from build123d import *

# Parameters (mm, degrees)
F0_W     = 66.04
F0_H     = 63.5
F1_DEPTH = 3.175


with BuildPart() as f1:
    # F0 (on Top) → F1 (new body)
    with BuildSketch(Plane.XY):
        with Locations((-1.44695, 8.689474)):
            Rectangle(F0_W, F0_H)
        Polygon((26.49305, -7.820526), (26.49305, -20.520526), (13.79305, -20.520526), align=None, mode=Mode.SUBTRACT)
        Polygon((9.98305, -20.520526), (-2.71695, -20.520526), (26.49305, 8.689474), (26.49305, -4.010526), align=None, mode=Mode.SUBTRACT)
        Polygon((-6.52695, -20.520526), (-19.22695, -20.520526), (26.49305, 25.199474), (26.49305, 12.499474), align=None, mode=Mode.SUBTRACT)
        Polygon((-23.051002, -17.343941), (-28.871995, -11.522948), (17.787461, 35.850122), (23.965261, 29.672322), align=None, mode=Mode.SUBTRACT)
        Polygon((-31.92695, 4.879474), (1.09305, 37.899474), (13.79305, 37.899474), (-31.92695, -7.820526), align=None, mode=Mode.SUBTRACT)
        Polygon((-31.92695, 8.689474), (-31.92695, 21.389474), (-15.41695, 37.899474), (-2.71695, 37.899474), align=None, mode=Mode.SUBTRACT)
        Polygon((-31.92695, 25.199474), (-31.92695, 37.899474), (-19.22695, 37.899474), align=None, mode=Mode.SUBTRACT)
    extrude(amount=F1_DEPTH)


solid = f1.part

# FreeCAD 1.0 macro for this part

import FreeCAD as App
import Part
import Sketcher

V = App.Vector
Q = App.Units.Quantity

doc = App.newDocument("Part")
body = doc.addObject("PartDesign::Body", "Body")

sketch1 = body.newObject("Sketcher::SketchObject", "Sketch")
sketch1.AttachmentSupport = (doc.getObject("XY_Plane"), [""])
sketch1.MapMode = "FlatFace"
sketch1.addGeometry([
    Part.LineSegment(V(-34.46695, 40.439474, 0), V(-34.46695, -23.060526, 0)),
    Part.LineSegment(V(-34.46695, -23.060526, 0), V(31.57305, -23.060526, 0)),
    Part.LineSegment(V(31.57305, -23.060526, 0), V(31.57305, 40.439474, 0)),
    Part.LineSegment(V(31.57305, 40.439474, 0), V(-34.46695, 40.439474, 0)),
    Part.LineSegment(V(13.79305, -20.520526, 0), V(26.49305, -7.820526, 0)),
    Part.LineSegment(V(26.49305, -7.820526, 0), V(26.49305, -20.520526, 0)),
    Part.LineSegment(V(26.49305, -20.520526, 0), V(13.79305, -20.520526, 0)),
    Part.LineSegment(V(26.49305, 12.499474, 0), V(-6.52695, -20.520526, 0)),
    Part.LineSegment(V(-6.52695, -20.520526, 0), V(-19.22695, -20.520526, 0)),
    Part.LineSegment(V(-19.22695, -20.520526, 0), V(26.49305, 25.199474, 0)),
    Part.LineSegment(V(26.49305, 25.199474, 0), V(26.49305, 12.499474, 0)),
    Part.LineSegment(V(26.49305, -4.010526, 0), V(9.98305, -20.520526, 0)),
    Part.LineSegment(V(9.98305, -20.520526, 0), V(-2.71695, -20.520526, 0)),
    Part.LineSegment(V(-2.71695, -20.520526, 0), V(26.49305, 8.689474, 0)),
    Part.LineSegment(V(26.49305, 8.689474, 0), V(26.49305, -4.010526, 0)),
    Part.LineSegment(V(-31.92695, -7.820526, 0), V(-31.92695, 4.879474, 0)),
    Part.LineSegment(V(-31.92695, 4.879474, 0), V(1.09305, 37.899474, 0)),
    Part.LineSegment(V(1.09305, 37.899474, 0), V(13.79305, 37.899474, 0)),
    Part.LineSegment(V(13.79305, 37.899474, 0), V(-31.92695, -7.820526, 0)),
    Part.LineSegment(V(-19.22695, 37.899474, 0), V(-31.92695, 25.199474, 0)),
    Part.LineSegment(V(-31.92695, 25.199474, 0), V(-31.92695, 37.899474, 0)),
    Part.LineSegment(V(-31.92695, 37.899474, 0), V(-19.22695, 37.899474, 0)),
    Part.LineSegment(V(-2.71695, 37.899474, 0), V(-31.92695, 8.689474, 0)),
    Part.LineSegment(V(-31.92695, 8.689474, 0), V(-31.92695, 21.389474, 0)),
    Part.LineSegment(V(-31.92695, 21.389474, 0), V(-15.41695, 37.899474, 0)),
    Part.LineSegment(V(-15.41695, 37.899474, 0), V(-2.71695, 37.899474, 0)),
    Part.LineSegment(V(23.965261, 29.672322, 0), V(-23.051002, -17.343941, 0)),
    Part.LineSegment(V(-23.051002, -17.343941, 0), V(-28.871995, -11.522948, 0)),
    Part.LineSegment(V(-28.871995, -11.522948, 0), V(17.787461, 35.850122, 0)),
    Part.LineSegment(V(17.787461, 35.850122, 0), V(23.965261, 29.672322, 0)),
], False)
sketch1.addConstraint([
    Sketcher.Constraint("Coincident", 0, 2, 1, 1),
    Sketcher.Constraint("Coincident", 1, 2, 2, 1),
    Sketcher.Constraint("Coincident", 2, 2, 3, 1),
    Sketcher.Constraint("Coincident", 3, 2, 0, 1),
    Sketcher.Constraint("Coincident", 4, 2, 5, 1),
    Sketcher.Constraint("Coincident", 5, 2, 6, 1),
    Sketcher.Constraint("Coincident", 6, 2, 4, 1),
    Sketcher.Constraint("Coincident", 7, 2, 8, 1),
    Sketcher.Constraint("Coincident", 8, 2, 9, 1),
    Sketcher.Constraint("Coincident", 9, 2, 10, 1),
    Sketcher.Constraint("Coincident", 10, 2, 7, 1),
    Sketcher.Constraint("Coincident", 11, 2, 12, 1),
    Sketcher.Constraint("Coincident", 12, 2, 13, 1),
    Sketcher.Constraint("Coincident", 13, 2, 14, 1),
    Sketcher.Constraint("Coincident", 14, 2, 11, 1),
    Sketcher.Constraint("Coincident", 15, 2, 16, 1),
    Sketcher.Constraint("Coincident", 16, 2, 17, 1),
    Sketcher.Constraint("Coincident", 17, 2, 18, 1),
    Sketcher.Constraint("Coincident", 18, 2, 15, 1),
    Sketcher.Constraint("Coincident", 19, 2, 20, 1),
    Sketcher.Constraint("Coincident", 20, 2, 21, 1),
    Sketcher.Constraint("Coincident", 21, 2, 19, 1),
    Sketcher.Constraint("Coincident", 22, 2, 23, 1),
    Sketcher.Constraint("Coincident", 23, 2, 24, 1),
    Sketcher.Constraint("Coincident", 24, 2, 25, 1),
    Sketcher.Constraint("Coincident", 25, 2, 22, 1),
    Sketcher.Constraint("Coincident", 26, 2, 27, 1),
    Sketcher.Constraint("Coincident", 27, 2, 28, 1),
    Sketcher.Constraint("Coincident", 28, 2, 29, 1),
    Sketcher.Constraint("Coincident", 29, 2, 26, 1),
    Sketcher.Constraint("Vertical", 0),
    Sketcher.Constraint("Horizontal", 1),
    Sketcher.Constraint("Vertical", 2),
    Sketcher.Constraint("Horizontal", 3),
    Sketcher.Constraint("Vertical", 5),
    Sketcher.Constraint("Horizontal", 6),
    Sketcher.Constraint("Horizontal", 8),
    Sketcher.Constraint("Vertical", 10),
    Sketcher.Constraint("Horizontal", 12),
    Sketcher.Constraint("Vertical", 14),
    Sketcher.Constraint("Vertical", 15),
    Sketcher.Constraint("Horizontal", 17),
    Sketcher.Constraint("Vertical", 20),
    Sketcher.Constraint("Horizontal", 21),
    Sketcher.Constraint("Vertical", 23),
    Sketcher.Constraint("Horizontal", 25),
    Sketcher.Constraint("DistanceX", 1, 1, 1, 2, Q("2.6 in")),
    Sketcher.Constraint("DistanceX", 6, 2, 6, 1, Q("0.5 in")),
    Sketcher.Constraint("DistanceX", 8, 2, 8, 1, Q("0.5 in")),
    Sketcher.Constraint("DistanceX", 12, 2, 12, 1, Q("0.5 in")),
    Sketcher.Constraint("DistanceX", 17, 1, 17, 2, Q("0.5 in")),
    Sketcher.Constraint("DistanceX", 21, 1, 21, 2, Q("0.5 in")),
    Sketcher.Constraint("DistanceX", 25, 1, 25, 2, Q("0.5 in")),
    Sketcher.Constraint("DistanceY", 0, 2, 0, 1, Q("2.5 in")),
    Sketcher.Constraint("DistanceY", 5, 2, 5, 1, Q("0.5 in")),
    Sketcher.Constraint("DistanceY", 10, 2, 10, 1, Q("0.5 in")),
    Sketcher.Constraint("DistanceY", 14, 2, 14, 1, Q("0.5 in")),
    Sketcher.Constraint("DistanceY", 15, 1, 15, 2, Q("0.5 in")),
    Sketcher.Constraint("DistanceY", 20, 1, 20, 2, Q("0.5 in")),
    Sketcher.Constraint("DistanceY", 23, 1, 23, 2, Q("0.5 in")),
    Sketcher.Constraint("DistanceY", 8, 2, 15, 2, Q("1 in")),
    Sketcher.Constraint("DistanceX", 15, 2, 7, 2, Q("1 in")),
    Sketcher.Constraint("DistanceY", 12, 2, 15, 2, Q("1 in")),
    Sketcher.Constraint("DistanceX", 16, 2, 9, 2, Q("1 in")),
    Sketcher.Constraint("DistanceY", 10, 2, 16, 2, Q("1 in")),
    Sketcher.Constraint("DistanceX", 16, 2, 13, 2, Q("1 in")),
    Sketcher.Constraint("DistanceX", 4, 2, 1, 2, Q("0.2 in")),
    Sketcher.Constraint("DistanceY", 1, 2, 4, 2, Q("0.6 in")),
    Sketcher.Constraint("DistanceX", 7, 2, 6, 2, Q("0.8 in")),
    Sketcher.Constraint("DistanceY", 0, 2, 7, 2, Q("0.1 in")),
    Sketcher.Constraint("DistanceX", 9, 2, 2, 2, Q("0.2 in")),
    Sketcher.Constraint("DistanceY", 9, 2, 2, 2, Q("0.6 in")),
    Sketcher.Constraint("DistanceX", 3, 2, 19, 2, Q("0.1 in")),
    Sketcher.Constraint("DistanceY", 19, 2, 3, 2, Q("0.6 in")),
    Sketcher.Constraint("DistanceX", 3, 2, 22, 2, Q("0.1 in")),
    Sketcher.Constraint("DistanceY", 24, 2, 3, 2, Q("0.1 in")),
    Sketcher.Constraint("DistanceX", 11, 2, 6, 2, Q("0.15 in")),
    Sketcher.Constraint("DistanceY", 13, 2, 10, 2, Q("0.15 in")),
    Sketcher.Constraint("DistanceY", 15, 2, 22, 2, Q("0.15 in")),
    Sketcher.Constraint("DistanceX", 21, 2, 24, 2, Q("0.15 in")),
    Sketcher.Constraint("DistanceX", 28, 2, 29, 2, Q("6.1778 mm")),
    Sketcher.Constraint("DistanceY", 29, 2, 28, 2, Q("6.1778 mm")),
    Sketcher.Constraint("Distance", 28, Q("66.492951 mm")),
    Sketcher.Constraint("DistanceX", 0, 2, -1, 1, Q("34.46695 mm")),
    Sketcher.Constraint("DistanceY", 26, 2, -1, 1, Q("17.343941 mm")),
    Sketcher.Constraint("DistanceX", -1, 1, 28, 2, Q("17.787461 mm")),
    Sketcher.Constraint("DistanceX", 18, 2, 26, 2, Q("8.875948 mm")),
    Sketcher.Constraint("DistanceY", 27, 2, 18, 2, Q("3.702422 mm")),
    Sketcher.Constraint("DistanceY", 28, 2, 17, 2, Q("2.049352 mm")),
    Sketcher.Constraint("Distance", 26, Q("66.491037 mm")),
])
pad1 = body.newObject("PartDesign::Pad", "Pad")
pad1.Profile = sketch1
pad1.Length = Q("0.125 in")

doc.recompute()
